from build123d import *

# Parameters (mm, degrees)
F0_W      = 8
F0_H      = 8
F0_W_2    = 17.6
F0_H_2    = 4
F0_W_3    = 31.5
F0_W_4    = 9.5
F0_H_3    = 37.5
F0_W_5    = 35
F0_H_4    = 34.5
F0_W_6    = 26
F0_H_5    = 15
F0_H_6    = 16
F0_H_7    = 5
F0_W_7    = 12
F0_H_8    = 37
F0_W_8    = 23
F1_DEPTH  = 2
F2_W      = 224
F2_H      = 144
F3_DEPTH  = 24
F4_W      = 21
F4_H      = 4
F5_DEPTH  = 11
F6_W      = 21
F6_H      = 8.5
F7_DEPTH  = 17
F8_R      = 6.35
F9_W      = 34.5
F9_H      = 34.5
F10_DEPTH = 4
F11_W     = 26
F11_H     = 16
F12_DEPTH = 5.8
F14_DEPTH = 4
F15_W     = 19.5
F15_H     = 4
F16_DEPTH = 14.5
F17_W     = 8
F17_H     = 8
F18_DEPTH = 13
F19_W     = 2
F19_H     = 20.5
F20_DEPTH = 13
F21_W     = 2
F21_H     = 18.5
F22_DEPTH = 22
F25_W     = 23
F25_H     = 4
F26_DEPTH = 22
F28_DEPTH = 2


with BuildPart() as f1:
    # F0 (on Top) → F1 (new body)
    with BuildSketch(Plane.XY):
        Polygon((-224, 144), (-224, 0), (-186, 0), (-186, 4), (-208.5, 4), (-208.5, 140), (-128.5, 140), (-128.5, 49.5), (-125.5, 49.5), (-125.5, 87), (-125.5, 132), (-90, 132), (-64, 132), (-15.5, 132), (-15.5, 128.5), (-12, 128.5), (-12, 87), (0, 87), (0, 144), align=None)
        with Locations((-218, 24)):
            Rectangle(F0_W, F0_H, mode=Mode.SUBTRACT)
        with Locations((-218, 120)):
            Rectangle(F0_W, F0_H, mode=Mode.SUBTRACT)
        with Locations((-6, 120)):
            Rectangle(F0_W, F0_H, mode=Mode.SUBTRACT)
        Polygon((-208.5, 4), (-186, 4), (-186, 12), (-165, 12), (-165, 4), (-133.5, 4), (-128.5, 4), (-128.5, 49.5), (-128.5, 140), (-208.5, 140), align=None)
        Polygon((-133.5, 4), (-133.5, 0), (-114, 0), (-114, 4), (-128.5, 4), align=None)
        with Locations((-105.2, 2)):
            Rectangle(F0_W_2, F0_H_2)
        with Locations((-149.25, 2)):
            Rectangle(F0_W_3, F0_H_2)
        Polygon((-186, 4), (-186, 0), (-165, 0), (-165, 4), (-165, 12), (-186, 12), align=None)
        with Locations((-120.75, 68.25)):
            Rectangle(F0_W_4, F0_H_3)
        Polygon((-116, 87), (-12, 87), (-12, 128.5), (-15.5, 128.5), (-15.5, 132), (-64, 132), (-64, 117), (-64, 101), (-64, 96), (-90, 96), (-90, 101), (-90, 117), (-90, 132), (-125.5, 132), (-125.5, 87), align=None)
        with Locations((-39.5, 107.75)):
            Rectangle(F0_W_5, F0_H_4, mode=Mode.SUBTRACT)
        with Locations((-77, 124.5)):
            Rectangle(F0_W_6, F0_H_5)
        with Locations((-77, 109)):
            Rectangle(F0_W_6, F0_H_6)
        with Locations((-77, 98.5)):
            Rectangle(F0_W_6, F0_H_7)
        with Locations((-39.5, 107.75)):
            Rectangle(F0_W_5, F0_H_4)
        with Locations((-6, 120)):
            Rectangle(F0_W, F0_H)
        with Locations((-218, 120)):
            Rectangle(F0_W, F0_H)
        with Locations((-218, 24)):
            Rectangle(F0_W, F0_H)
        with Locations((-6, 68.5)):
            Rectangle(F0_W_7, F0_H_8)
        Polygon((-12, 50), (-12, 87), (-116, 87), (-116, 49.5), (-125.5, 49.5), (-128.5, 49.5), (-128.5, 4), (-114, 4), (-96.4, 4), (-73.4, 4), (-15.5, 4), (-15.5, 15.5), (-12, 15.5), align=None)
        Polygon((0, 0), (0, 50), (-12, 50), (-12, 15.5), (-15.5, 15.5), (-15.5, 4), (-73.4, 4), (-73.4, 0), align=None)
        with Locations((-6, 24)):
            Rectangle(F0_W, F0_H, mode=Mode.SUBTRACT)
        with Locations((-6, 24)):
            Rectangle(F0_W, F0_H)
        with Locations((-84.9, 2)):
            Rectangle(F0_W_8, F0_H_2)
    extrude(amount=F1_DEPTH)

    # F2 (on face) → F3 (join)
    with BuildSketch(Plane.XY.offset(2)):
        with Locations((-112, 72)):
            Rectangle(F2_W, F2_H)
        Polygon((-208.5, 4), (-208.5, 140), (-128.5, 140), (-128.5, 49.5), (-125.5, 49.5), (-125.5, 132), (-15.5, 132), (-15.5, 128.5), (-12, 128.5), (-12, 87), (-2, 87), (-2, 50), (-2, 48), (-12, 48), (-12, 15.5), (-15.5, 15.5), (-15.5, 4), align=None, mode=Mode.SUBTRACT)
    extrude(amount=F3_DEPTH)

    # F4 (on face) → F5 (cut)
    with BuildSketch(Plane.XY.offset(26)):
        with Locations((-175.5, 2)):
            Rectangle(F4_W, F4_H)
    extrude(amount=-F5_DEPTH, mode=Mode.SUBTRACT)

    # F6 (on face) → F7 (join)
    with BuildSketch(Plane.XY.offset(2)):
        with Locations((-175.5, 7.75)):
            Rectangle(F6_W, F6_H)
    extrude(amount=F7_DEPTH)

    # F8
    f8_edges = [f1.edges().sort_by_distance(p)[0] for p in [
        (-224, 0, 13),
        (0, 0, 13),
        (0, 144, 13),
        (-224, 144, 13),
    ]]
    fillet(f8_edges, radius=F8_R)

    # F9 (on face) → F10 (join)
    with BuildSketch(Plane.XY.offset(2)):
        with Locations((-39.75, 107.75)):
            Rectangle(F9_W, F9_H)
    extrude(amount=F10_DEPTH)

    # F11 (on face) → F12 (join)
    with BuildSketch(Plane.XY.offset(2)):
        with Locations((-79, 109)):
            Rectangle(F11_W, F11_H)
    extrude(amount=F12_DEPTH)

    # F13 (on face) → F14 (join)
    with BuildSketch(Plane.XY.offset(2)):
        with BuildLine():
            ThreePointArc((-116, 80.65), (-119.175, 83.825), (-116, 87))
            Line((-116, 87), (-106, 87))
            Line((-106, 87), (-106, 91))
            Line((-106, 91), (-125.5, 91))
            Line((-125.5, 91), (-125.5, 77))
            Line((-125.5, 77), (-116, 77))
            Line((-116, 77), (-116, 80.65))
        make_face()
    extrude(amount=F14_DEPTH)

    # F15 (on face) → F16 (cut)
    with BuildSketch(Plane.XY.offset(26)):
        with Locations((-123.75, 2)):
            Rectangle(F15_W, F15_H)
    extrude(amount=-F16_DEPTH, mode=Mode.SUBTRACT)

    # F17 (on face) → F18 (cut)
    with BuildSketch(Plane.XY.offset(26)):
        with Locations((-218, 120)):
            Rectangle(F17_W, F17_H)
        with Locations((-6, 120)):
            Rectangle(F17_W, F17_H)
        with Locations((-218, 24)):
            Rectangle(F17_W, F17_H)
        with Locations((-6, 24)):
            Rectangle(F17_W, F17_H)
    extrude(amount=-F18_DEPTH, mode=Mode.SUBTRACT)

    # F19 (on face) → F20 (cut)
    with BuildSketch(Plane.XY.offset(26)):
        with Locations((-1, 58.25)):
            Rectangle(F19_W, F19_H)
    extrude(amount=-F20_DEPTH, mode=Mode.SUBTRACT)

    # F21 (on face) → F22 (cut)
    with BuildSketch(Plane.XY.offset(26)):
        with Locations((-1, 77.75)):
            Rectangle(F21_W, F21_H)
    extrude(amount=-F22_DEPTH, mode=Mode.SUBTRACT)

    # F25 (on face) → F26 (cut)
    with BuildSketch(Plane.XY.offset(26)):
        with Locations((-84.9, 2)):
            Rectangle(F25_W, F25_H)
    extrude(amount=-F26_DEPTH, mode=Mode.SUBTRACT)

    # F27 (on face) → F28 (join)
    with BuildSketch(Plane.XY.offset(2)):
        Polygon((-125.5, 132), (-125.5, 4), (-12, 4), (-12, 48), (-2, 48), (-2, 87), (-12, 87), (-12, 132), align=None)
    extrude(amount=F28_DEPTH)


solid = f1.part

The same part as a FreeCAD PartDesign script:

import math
import FreeCAD as App
import Part
import Sketcher


def edges_at(feature, points):
    """Names of the edges that pass closest to the given points."""
    edges = feature.Shape.Edges
    near = lambda p: min(range(len(edges)), key=lambda i: edges[i].distToShape(Part.Vertex(*p))[0])
    return sorted({f"Edge{near(p) + 1}" for p in points})

doc = App.newDocument("Part")
params = doc.addObject("Spreadsheet::Sheet", "Params")
for row, (alias, value) in enumerate([
    ("sketch1_width", "224 mm"),
    ("sketch1_height", "144 mm"),
    ("pad1_length", "2 mm"),
    ("sketch2_width", "224 mm"),
    ("sketch2_width2", "193 mm"),
    ("sketch2_width3", "80 mm"),
    ("sketch2_width4", "3 mm"),
    ("sketch2_width5", "10 mm"),
    ("pad2_length", "24 mm"),
    ("sketch3_width", "21 mm"),
    ("sketch3_height", "4 mm"),
    ("pocket1_length", "11 mm"),
    ("sketch4_width", "21 mm"),
    ("sketch4_height", "8.5 mm"),
    ("pad3_length", "17 mm"),
    ("fillet_radius", "6.35 mm"),
    ("sketch5_width", "34.5 mm"),
    ("pad4_length", "4 mm"),
    ("sketch6_width", "26 mm"),
    ("sketch6_height", "16 mm"),
    ("pad5_length", "5.8 mm"),
    ("sketch7_width", "10 mm"),
    ("sketch7_height", "4 mm"),
    ("sketch7_height2", "14 mm"),
    ("sketch7_width2", "19.5 mm"),
    ("pad6_length", "4 mm"),
    ("sketch8_height", "4 mm"),
    ("sketch8_width", "19.5 mm"),
    ("pocket2_length", "14.5 mm"),
    ("sketch9_width", "8 mm"),
    ("pocket3_length", "13 mm"),
    ("sketch10_width", "2 mm"),
    ("sketch10_height", "20.5 mm"),
    ("pocket4_length", "13 mm"),
    ("sketch11_width", "2 mm"),
    ("sketch11_height", "18.5 mm"),
    ("pocket5_length", "22 mm"),
    ("sketch12_width", "23 mm"),
    ("sketch12_height", "4 mm"),
    ("pocket6_length", "22 mm"),
    ("sketch13_width", "10 mm"),
    ("sketch13_height", "128 mm"),
    ("sketch13_height2", "44 mm"),
    ("sketch13_height3", "39 mm"),
    ("sketch13_width2", "113.5 mm"),
    ("pad7_length", "2 mm"),
], start=1):
    params.set(f"A{row}", alias)
    params.set(f"B{row}", "=" + value)
    params.setAlias(f"B{row}", alias)

body = doc.addObject("PartDesign::Body", "Body")

# Sketch on XY plane
sketch1 = body.newObject("Sketcher::SketchObject", "Sketch")
sketch1.AttachmentSupport = (doc.getObject("XY_Plane"), [""])
sketch1.MapMode = "FlatFace"
sketch1.addGeometry([
    Part.LineSegment(App.Vector(0, 144, 0), App.Vector(-224, 144, 0)),
    Part.LineSegment(App.Vector(-224, 144, 0), App.Vector(-224, 0, 0)),
    Part.LineSegment(App.Vector(-224, 0, 0), App.Vector(0, 0, 0)),
    Part.LineSegment(App.Vector(0, 0, 0), App.Vector(0, 144, 0)),
], False)
sketch1.addConstraint([
    Sketcher.Constraint("Coincident", 0, 2, 1, 1),
    Sketcher.Constraint("Coincident", 1, 2, 2, 1),
    Sketcher.Constraint("Coincident", 2, 2, 3, 1),
    Sketcher.Constraint("Coincident", 3, 2, 0, 1),
    Sketcher.Constraint("Horizontal", 0),
    Sketcher.Constraint("Vertical", 1),
    Sketcher.Constraint("Horizontal", 2),
    Sketcher.Constraint("Vertical", 3),
    Sketcher.Constraint("Coincident", 2, 2, -1, 1),
    Sketcher.Constraint("DistanceX", 0, 2, 0, 1, 224.0),
    Sketcher.Constraint("DistanceY", 1, 2, 1, 1, 144.0),
])
sketch1.setExpression("Constraints[9]", "Params.sketch1_width")
sketch1.setExpression("Constraints[10]", "Params.sketch1_height")
pad1 = body.newObject("PartDesign::Pad", "Pad")
pad1.Profile = sketch1
pad1.setExpression("Length", "Params.pad1_length")

# Sketch on XY plane
sketch2 = body.newObject("Sketcher::SketchObject", "Sketch001")
sketch2.AttachmentSupport = (doc.getObject("XY_Plane"), [""])
sketch2.MapMode = "FlatFace"
sketch2.AttachmentOffset = App.Placement(App.Vector(0, 0, 2), App.Rotation())
sketch2.addGeometry([
    Part.LineSegment(App.Vector(-224, 144, 0), App.Vector(-224, 0, 0)),  # 0
    Part.LineSegment(App.Vector(-224, 0, 0), App.Vector(0, 0, 0)),  # 1
    Part.LineSegment(App.Vector(0, 0, 0), App.Vector(0, 144, 0)),  # 2
    Part.LineSegment(App.Vector(0, 144, 0), App.Vector(-224, 144, 0)),  # 3
    Part.LineSegment(App.Vector(-15.5, 4, 0), App.Vector(-208.5, 4, 0)),  # 4
    Part.LineSegment(App.Vector(-208.5, 4, 0), App.Vector(-208.5, 140, 0)),  # 5
    Part.LineSegment(App.Vector(-208.5, 140, 0), App.Vector(-128.5, 140, 0)),  # 6
    Part.LineSegment(App.Vector(-128.5, 140, 0), App.Vector(-128.5, 49.5, 0)),  # 7
    Part.LineSegment(App.Vector(-128.5, 49.5, 0), App.Vector(-125.5, 49.5, 0)),  # 8
    Part.LineSegment(App.Vector(-125.5, 49.5, 0), App.Vector(-125.5, 132, 0)),  # 9
    Part.LineSegment(App.Vector(-125.5, 132, 0), App.Vector(-15.5, 132, 0)),  # 10
    Part.LineSegment(App.Vector(-15.5, 132, 0), App.Vector(-15.5, 128.5, 0)),  # 11
    Part.LineSegment(App.Vector(-15.5, 128.5, 0), App.Vector(-12, 128.5, 0)),  # 12
    Part.LineSegment(App.Vector(-12, 128.5, 0), App.Vector(-12, 87, 0)),  # 13
    Part.LineSegment(App.Vector(-12, 87, 0), App.Vector(-2, 87, 0)),  # 14
    Part.LineSegment(App.Vector(-2, 87, 0), App.Vector(-2, 48, 0)),  # 15
    Part.LineSegment(App.Vector(-2, 48, 0), App.Vector(-12, 48, 0)),  # 16
    Part.LineSegment(App.Vector(-12, 48, 0), App.Vector(-12, 15.5, 0)),  # 17
    Part.LineSegment(App.Vector(-12, 15.5, 0), App.Vector(-15.5, 15.5, 0)),  # 18
    Part.LineSegment(App.Vector(-15.5, 15.5, 0), App.Vector(-15.5, 4, 0)),  # 19
], False)
sketch2.addConstraint([
    Sketcher.Constraint("Coincident", 0, 2, 1, 1),
    Sketcher.Constraint("Coincident", 1, 2, 2, 1),
    Sketcher.Constraint("Coincident", 2, 2, 3, 1),
    Sketcher.Constraint("Coincident", 3, 2, 0, 1),
    Sketcher.Constraint("Coincident", 4, 2, 5, 1),
    Sketcher.Constraint("Coincident", 5, 2, 6, 1),
    Sketcher.Constraint("Coincident", 6, 2, 7, 1),
    Sketcher.Constraint("Coincident", 7, 2, 8, 1),
    Sketcher.Constraint("Coincident", 8, 2, 9, 1),
    Sketcher.Constraint("Coincident", 9, 2, 10, 1),
    Sketcher.Constraint("Coincident", 10, 2, 11, 1),
    Sketcher.Constraint("Coincident", 11, 2, 12, 1),
    Sketcher.Constraint("Coincident", 12, 2, 13, 1),
    Sketcher.Constraint("Coincident", 13, 2, 14, 1),
    Sketcher.Constraint("Coincident", 14, 2, 15, 1),
    Sketcher.Constraint("Coincident", 15, 2, 16, 1),
    Sketcher.Constraint("Coincident", 16, 2, 17, 1),
    Sketcher.Constraint("Coincident", 17, 2, 18, 1),
    Sketcher.Constraint("Coincident", 18, 2, 19, 1),
    Sketcher.Constraint("Coincident", 19, 2, 4, 1),
    Sketcher.Constraint("Vertical", 0),
    Sketcher.Constraint("Horizontal", 1),
    Sketcher.Constraint("Vertical", 2),
    Sketcher.Constraint("Horizontal", 3),
    Sketcher.Constraint("Horizontal", 4),
    Sketcher.Constraint("Vertical", 5),
    Sketcher.Constraint("Horizontal", 6),
    Sketcher.Constraint("Vertical", 7),
    Sketcher.Constraint("Horizontal", 8),
    Sketcher.Constraint("Vertical", 9),
    Sketcher.Constraint("Horizontal", 10),
    Sketcher.Constraint("Vertical", 11),
    Sketcher.Constraint("Horizontal", 12),
    Sketcher.Constraint("Vertical", 13),
    Sketcher.Constraint("Horizontal", 14),
    Sketcher.Constraint("Vertical", 15),
    Sketcher.Constraint("Horizontal", 16),
    Sketcher.Constraint("Vertical", 17),
    Sketcher.Constraint("Horizontal", 18),
    Sketcher.Constraint("Vertical", 19),
    Sketcher.Constraint("Coincident", 1, 2, -1, 1),
    Sketcher.Constraint("Vertical", 13, 2, 16, 2),
    Sketcher.Constraint("Vertical", 11, 2, 18, 2),
    Sketcher.Constraint("Equal", 18, 11),
    Sketcher.Constraint("DistanceX", 1, 1, 1, 2, 224.0),
    Sketcher.Constraint("DistanceX", 4, 2, 4, 1, 193.0),
    Sketcher.Constraint("DistanceX", 6, 1, 6, 2, 80.0),
    Sketcher.Constraint("DistanceX", 8, 1, 8, 2, 3.0),
    Sketcher.Constraint("DistanceX", 14, 1, 14, 2, 10.0),
    Sketcher.Constraint("DistanceY", 0, 2, 0, 1, 144.0),
    Sketcher.Constraint("DistanceY", 5, 1, 5, 2, 136.0),
    Sketcher.Constraint("DistanceY", 15, 2, 15, 1, 39.0),
    Sketcher.Constraint("DistanceX", 12, 1, 12, 2, 3.5),
    Sketcher.Constraint("DistanceY", 7, 2, 7, 1, 90.5),
    Sketcher.Constraint("DistanceY", 9, 1, 9, 2, 82.5),
    Sketcher.Constraint("DistanceY", 13, 2, 13, 1, 41.5),
    Sketcher.Constraint("DistanceY", 17, 2, 17, 1, 32.5),
    Sketcher.Constraint("DistanceY", -1, 1, 4, 2, 4.0),
    Sketcher.Constraint("DistanceX", 12, 2, -1, 1, 12.0),
])
sketch2.setExpression("Constraints[44]", "Params.sketch2_width")
sketch2.setExpression("Constraints[45]", "Params.sketch2_width2")
sketch2.setExpression("Constraints[46]", "Params.sketch2_width3")
sketch2.setExpression("Constraints[47]", "Params.sketch2_width4")
sketch2.setExpression("Constraints[48]", "Params.sketch2_width5")
pad2 = body.newObject("PartDesign::Pad", "Pad001")
pad2.Profile = sketch2
pad2.setExpression("Length", "Params.pad2_length")

# Sketch on XY plane
sketch3 = body.newObject("Sketcher::SketchObject", "Sketch002")
sketch3.AttachmentSupport = (doc.getObject("XY_Plane"), [""])
sketch3.MapMode = "FlatFace"
sketch3.AttachmentOffset = App.Placement(App.Vector(0, 0, 26), App.Rotation())
sketch3.addGeometry([
    Part.LineSegment(App.Vector(-186, 4, 0), App.Vector(-186, 0, 0)),
    Part.LineSegment(App.Vector(-186, 0, 0), App.Vector(-165, 0, 0)),
    Part.LineSegment(App.Vector(-165, 0, 0), App.Vector(-165, 4, 0)),
    Part.LineSegment(App.Vector(-165, 4, 0), App.Vector(-186, 4, 0)),
], False)
sketch3.addConstraint([
    Sketcher.Constraint("Coincident", 0, 2, 1, 1),
    Sketcher.Constraint("Coincident", 1, 2, 2, 1),
    Sketcher.Constraint("Coincident", 2, 2, 3, 1),
    Sketcher.Constraint("Coincident", 3, 2, 0, 1),
    Sketcher.Constraint("Vertical", 0),
    Sketcher.Constraint("Horizontal", 1),
    Sketcher.Constraint("Vertical", 2),
    Sketcher.Constraint("Horizontal", 3),
    Sketcher.Constraint("PointOnObject", 0, 2, -1),
    Sketcher.Constraint("DistanceX", 1, 1, 1, 2, 21.0),
    Sketcher.Constraint("DistanceY", 0, 2, 0, 1, 4.0),
    Sketcher.Constraint("DistanceX", 0, 2, -1, 1, 186.0),
])
sketch3.setExpression("Constraints[9]", "Params.sketch3_width")
sketch3.setExpression("Constraints[10]", "Params.sketch3_height")
pocket1 = body.newObject("PartDesign::Pocket", "Pocket")
pocket1.Profile = sketch3
pocket1.setExpression("Length", "Params.pocket1_length")

# Sketch on XY plane
sketch4 = body.newObject("Sketcher::SketchObject", "Sketch003")
sketch4.AttachmentSupport = (doc.getObject("XY_Plane"), [""])
sketch4.MapMode = "FlatFace"
sketch4.AttachmentOffset = App.Placement(App.Vector(0, 0, 2), App.Rotation())
sketch4.addGeometry([
    Part.LineSegment(App.Vector(-186, 12, 0), App.Vector(-186, 3.5, 0)),
    Part.LineSegment(App.Vector(-186, 3.5, 0), App.Vector(-165, 3.5, 0)),
    Part.LineSegment(App.Vector(-165, 3.5, 0), App.Vector(-165, 12, 0)),
    Part.LineSegment(App.Vector(-165, 12, 0), App.Vector(-186, 12, 0)),
], False)
sketch4.addConstraint([
    Sketcher.Constraint("Coincident", 0, 2, 1, 1),
    Sketcher.Constraint("Coincident", 1, 2, 2, 1),
    Sketcher.Constraint("Coincident", 2, 2, 3, 1),
    Sketcher.Constraint("Coincident", 3, 2, 0, 1),
    Sketcher.Constraint("Vertical", 0),
    Sketcher.Constraint("Horizontal", 1),
    Sketcher.Constraint("Vertical", 2),
    Sketcher.Constraint("Horizontal", 3),
    Sketcher.Constraint("DistanceX", 1, 1, 1, 2, 21.0),
    Sketcher.Constraint("DistanceY", 0, 2, 0, 1, 8.5),
    Sketcher.Constraint("DistanceX", 0, 2, -1, 1, 186.0),
    Sketcher.Constraint("DistanceY", -1, 1, 2, 2, 12.0),
])
sketch4.setExpression("Constraints[8]", "Params.sketch4_width")
sketch4.setExpression("Constraints[9]", "Params.sketch4_height")
pad3 = body.newObject("PartDesign::Pad", "Pad002")
pad3.Profile = sketch4
pad3.setExpression("Length", "Params.pad3_length")
doc.recompute()

fillet = body.newObject("PartDesign::Fillet", "Fillet")
fillet.Base = (pad3, edges_at(pad3, [
    (-224, 0, 13),
    (0, 0, 13),
    (0, 144, 13),
    (-224, 144, 13),
]))
fillet.setExpression("Radius", "Params.fillet_radius")

# Sketch on XY plane
sketch5 = body.newObject("Sketcher::SketchObject", "Sketch004")
sketch5.AttachmentSupport = (doc.getObject("XY_Plane"), [""])
sketch5.MapMode = "FlatFace"
sketch5.AttachmentOffset = App.Placement(App.Vector(0, 0, 2), App.Rotation())
sketch5.addGeometry([
    Part.LineSegment(App.Vector(-57, 125, 0), App.Vector(-57, 90.5, 0)),
    Part.LineSegment(App.Vector(-57, 90.5, 0), App.Vector(-22.5, 90.5, 0)),
    Part.LineSegment(App.Vector(-22.5, 90.5, 0), App.Vector(-22.5, 125, 0)),
    Part.LineSegment(App.Vector(-22.5, 125, 0), App.Vector(-57, 125, 0)),
], False)
sketch5.addConstraint([
    Sketcher.Constraint("Coincident", 0, 2, 1, 1),
    Sketcher.Constraint("Coincident", 1, 2, 2, 1),
    Sketcher.Constraint("Coincident", 2, 2, 3, 1),
    Sketcher.Constraint("Coincident", 3, 2, 0, 1),
    Sketcher.Constraint("Vertical", 0),
    Sketcher.Constraint("Horizontal", 1),
    Sketcher.Constraint("Vertical", 2),
    Sketcher.Constraint("Horizontal", 3),
    Sketcher.Constraint("Equal", 3, 0),
    Sketcher.Constraint("DistanceX", 1, 1, 1, 2, 34.5),
    Sketcher.Constraint("DistanceX", 0, 2, -1, 1, 57.0),
    Sketcher.Constraint("DistanceY", -1, 1, 2, 2, 125.0),
])
sketch5.setExpression("Constraints[9]", "Params.sketch5_width")
pad4 = body.newObject("PartDesign::Pad", "Pad003")
pad4.Profile = sketch5
pad4.setExpression("Length", "Params.pad4_length")

# Sketch on XY plane
sketch6 = body.newObject("Sketcher::SketchObject", "Sketch005")
sketch6.AttachmentSupport = (doc.getObject("XY_Plane"), [""])
sketch6.MapMode = "FlatFace"
sketch6.AttachmentOffset = App.Placement(App.Vector(0, 0, 2), App.Rotation())
sketch6.addGeometry([
    Part.LineSegment(App.Vector(-92, 117, 0), App.Vector(-92, 101, 0)),
    Part.LineSegment(App.Vector(-92, 101, 0), App.Vector(-66, 101, 0)),
    Part.LineSegment(App.Vector(-66, 101, 0), App.Vector(-66, 117, 0)),
    Part.LineSegment(App.Vector(-66, 117, 0), App.Vector(-92, 117, 0)),
], False)
sketch6.addConstraint([
    Sketcher.Constraint("Coincident", 0, 2, 1, 1),
    Sketcher.Constraint("Coincident", 1, 2, 2, 1),
    Sketcher.Constraint("Coincident", 2, 2, 3, 1),
    Sketcher.Constraint("Coincident", 3, 2, 0, 1),
    Sketcher.Constraint("Vertical", 0),
    Sketcher.Constraint("Horizontal", 1),
    Sketcher.Constraint("Vertical", 2),
    Sketcher.Constraint("Horizontal", 3),
    Sketcher.Constraint("DistanceX", 1, 1, 1, 2, 26.0),
    Sketcher.Constraint("DistanceY", 0, 2, 0, 1, 16.0),
    Sketcher.Constraint("DistanceX", 0, 2, -1, 1, 92.0),
    Sketcher.Constraint("DistanceY", -1, 1, 0, 2, 101.0),
])
sketch6.setExpression("Constraints[8]", "Params.sketch6_width")
sketch6.setExpression("Constraints[9]", "Params.sketch6_height")
pad5 = body.newObject("PartDesign::Pad", "Pad004")
pad5.Profile = sketch6
pad5.setExpression("Length", "Params.pad5_length")

# Sketch on XY plane
sketch7 = body.newObject("Sketcher::SketchObject", "Sketch006")
sketch7.AttachmentSupport = (doc.getObject("XY_Plane"), [""])
sketch7.MapMode = "FlatFace"
sketch7.AttachmentOffset = App.Placement(App.Vector(0, 0, 2), App.Rotation())
sketch7.addGeometry([
    Part.ArcOfCircle(Part.Circle(App.Vector(-116, 83.825, 0), App.Vector(0, 0, 1), 3.175), math.radians(90), math.radians(270)),  # 0
    Part.LineSegment(App.Vector(-116, 87, 0), App.Vector(-106, 87, 0)),  # 1
    Part.LineSegment(App.Vector(-106, 87, 0), App.Vector(-106, 91, 0)),  # 2
    Part.LineSegment(App.Vector(-106, 91, 0), App.Vector(-125.5, 91, 0)),  # 3
    Part.LineSegment(App.Vector(-125.5, 91, 0), App.Vector(-125.5, 77, 0)),  # 4
    Part.LineSegment(App.Vector(-125.5, 77, 0), App.Vector(-116, 77, 0)),  # 5
    Part.LineSegment(App.Vector(-116, 77, 0), App.Vector(-116, 80.65, 0)),  # 6
], False)
sketch7.addConstraint([
    Sketcher.Constraint("Tangent", 0, 1, 1, 1),
    Sketcher.Constraint("Coincident", 1, 2, 2, 1),
    Sketcher.Constraint("Coincident", 2, 2, 3, 1),
    Sketcher.Constraint("Coincident", 3, 2, 4, 1),
    Sketcher.Constraint("Coincident", 4, 2, 5, 1),
    Sketcher.Constraint("Coincident", 5, 2, 6, 1),
    Sketcher.Constraint("Coincident", 6, 2, 0, 2),
    Sketcher.Constraint("Horizontal", 1),
    Sketcher.Constraint("Vertical", 2),
    Sketcher.Constraint("Horizontal", 3),
    Sketcher.Constraint("Vertical", 4),
    Sketcher.Constraint("Horizontal", 5),
    Sketcher.Constraint("Vertical", 6),
    Sketcher.Constraint("Vertical", 0, 1, 5, 2),
    Sketcher.Constraint("DistanceX", 1, 1, 1, 2, 10.0),
    Sketcher.Constraint("DistanceY", 2, 1, 2, 2, 4.0),
    Sketcher.Constraint("DistanceY", 4, 2, 4, 1, 14.0),
    Sketcher.Constraint("DistanceX", 3, 2, 3, 1, 19.5),
    Sketcher.Constraint("DistanceX", 0, 3, -1, 1, 116.0),
    Sketcher.Constraint("DistanceY", -1, 1, 0, 1, 87.0),
    Sketcher.Constraint("Radius", 0, 3.175),
])
sketch7.setExpression("Constraints[14]", "Params.sketch7_width")
sketch7.setExpression("Constraints[15]", "Params.sketch7_height")
sketch7.setExpression("Constraints[16]", "Params.sketch7_height2")
sketch7.setExpression("Constraints[17]", "Params.sketch7_width2")
pad6 = body.newObject("PartDesign::Pad", "Pad005")
pad6.Profile = sketch7
pad6.setExpression("Length", "Params.pad6_length")

# Sketch on XY plane
sketch8 = body.newObject("Sketcher::SketchObject", "Sketch007")
sketch8.AttachmentSupport = (doc.getObject("XY_Plane"), [""])
sketch8.MapMode = "FlatFace"
sketch8.AttachmentOffset = App.Placement(App.Vector(0, 0, 26), App.Rotation())
sketch8.addGeometry([
    Part.LineSegment(App.Vector(-133.5, 4, 0), App.Vector(-133.5, 0, 0)),
    Part.LineSegment(App.Vector(-133.5, 0, 0), App.Vector(-114, 0, 0)),
    Part.LineSegment(App.Vector(-114, 0, 0), App.Vector(-114, 4, 0)),
    Part.LineSegment(App.Vector(-114, 4, 0), App.Vector(-133.5, 4, 0)),
], False)
sketch8.addConstraint([
    Sketcher.Constraint("Coincident", 0, 2, 1, 1),
    Sketcher.Constraint("Coincident", 1, 2, 2, 1),
    Sketcher.Constraint("Coincident", 2, 2, 3, 1),
    Sketcher.Constraint("Coincident", 3, 2, 0, 1),
    Sketcher.Constraint("Vertical", 0),
    Sketcher.Constraint("Horizontal", 1),
    Sketcher.Constraint("Vertical", 2),
    Sketcher.Constraint("Horizontal", 3),
    Sketcher.Constraint("PointOnObject", 0, 2, -1),
    Sketcher.Constraint("DistanceY", 0, 2, 0, 1, 4.0),
    Sketcher.Constraint("DistanceX", 1, 1, 1, 2, 19.5),
    Sketcher.Constraint("DistanceX", 1, 2, -1, 1, 114.0),
])
sketch8.setExpression("Constraints[9]", "Params.sketch8_height")
sketch8.setExpression("Constraints[10]", "Params.sketch8_width")
pocket2 = body.newObject("PartDesign::Pocket", "Pocket001")
pocket2.Profile = sketch8
pocket2.setExpression("Length", "Params.pocket2_length")

# Sketch on XY plane
sketch9 = body.newObject("Sketcher::SketchObject", "Sketch008")
sketch9.AttachmentSupport = (doc.getObject("XY_Plane"), [""])
sketch9.MapMode = "FlatFace"
sketch9.AttachmentOffset = App.Placement(App.Vector(0, 0, 26), App.Rotation())
sketch9.addGeometry([
    Part.LineSegment(App.Vector(-222, 124, 0), App.Vector(-222, 116, 0)),  # 0
    Part.LineSegment(App.Vector(-222, 116, 0), App.Vector(-214, 116, 0)),  # 1
    Part.LineSegment(App.Vector(-214, 116, 0), App.Vector(-214, 124, 0)),  # 2
    Part.LineSegment(App.Vector(-214, 124, 0), App.Vector(-222, 124, 0)),  # 3
    Part.LineSegment(App.Vector(-10, 124, 0), App.Vector(-10, 116, 0)),  # 4
    Part.LineSegment(App.Vector(-10, 116, 0), App.Vector(-2, 116, 0)),  # 5
    Part.LineSegment(App.Vector(-2, 116, 0), App.Vector(-2, 124, 0)),  # 6
    Part.LineSegment(App.Vector(-2, 124, 0), App.Vector(-10, 124, 0)),  # 7
    Part.LineSegment(App.Vector(-222, 28, 0), App.Vector(-222, 20, 0)),  # 8
    Part.LineSegment(App.Vector(-222, 20, 0), App.Vector(-214, 20, 0)),  # 9
    Part.LineSegment(App.Vector(-214, 20, 0), App.Vector(-214, 28, 0)),  # 10
    Part.LineSegment(App.Vector(-214, 28, 0), App.Vector(-222, 28, 0)),  # 11
    Part.LineSegment(App.Vector(-10, 28, 0), App.Vector(-10, 20, 0)),  # 12
    Part.LineSegment(App.Vector(-10, 20, 0), App.Vector(-2, 20, 0)),  # 13
    Part.LineSegment(App.Vector(-2, 20, 0), App.Vector(-2, 28, 0)),  # 14
    Part.LineSegment(App.Vector(-2, 28, 0), App.Vector(-10, 28, 0)),  # 15
], False)
sketch9.addConstraint([
    Sketcher.Constraint("Coincident", 0, 2, 1, 1),
    Sketcher.Constraint("Coincident", 1, 2, 2, 1),
    Sketcher.Constraint("Coincident", 2, 2, 3, 1),
    Sketcher.Constraint("Coincident", 3, 2, 0, 1),
    Sketcher.Constraint("Coincident", 4, 2, 5, 1),
    Sketcher.Constraint("Coincident", 5, 2, 6, 1),
    Sketcher.Constraint("Coincident", 6, 2, 7, 1),
    Sketcher.Constraint("Coincident", 7, 2, 4, 1),
    Sketcher.Constraint("Coincident", 8, 2, 9, 1),
    Sketcher.Constraint("Coincident", 9, 2, 10, 1),
    Sketcher.Constraint("Coincident", 10, 2, 11, 1),
    Sketcher.Constraint("Coincident", 11, 2, 8, 1),
    Sketcher.Constraint("Coincident", 12, 2, 13, 1),
    Sketcher.Constraint("Coincident", 13, 2, 14, 1),
    Sketcher.Constraint("Coincident", 14, 2, 15, 1),
    Sketcher.Constraint("Coincident", 15, 2, 12, 1),
    Sketcher.Constraint("Vertical", 0),
    Sketcher.Constraint("Horizontal", 1),
    Sketcher.Constraint("Vertical", 2),
    Sketcher.Constraint("Horizontal", 3),
    Sketcher.Constraint("Vertical", 4),
    Sketcher.Constraint("Horizontal", 5),
    Sketcher.Constraint("Vertical", 6),
    Sketcher.Constraint("Horizontal", 7),
    Sketcher.Constraint("Vertical", 8),
    Sketcher.Constraint("Horizontal", 9),
    Sketcher.Constraint("Vertical", 10),
    Sketcher.Constraint("Horizontal", 11),
    Sketcher.Constraint("Vertical", 12),
    Sketcher.Constraint("Horizontal", 13),
    Sketcher.Constraint("Vertical", 14),
    Sketcher.Constraint("Horizontal", 15),
    Sketcher.Constraint("Horizontal", 1, 2, 4, 2),
    Sketcher.Constraint("Horizontal", 3, 2, 6, 2),
    Sketcher.Constraint("Horizontal", 9, 2, 12, 2),
    Sketcher.Constraint("Horizontal", 11, 2, 14, 2),
    Sketcher.Constraint("Vertical", 3, 2, 8, 2),
    Sketcher.Constraint("Vertical", 2, 2, 9, 2),
    Sketcher.Constraint("Vertical", 7, 2, 12, 2),
    Sketcher.Constraint("Vertical", 6, 2, 13, 2),
    Sketcher.Constraint("Equal", 3, 5),
    Sketcher.Constraint("Equal", 15, 0),
    Sketcher.Constraint("Equal", 6, 8),
    Sketcher.Constraint("DistanceX", 1, 1, 1, 2, 8.0),
    Sketcher.Constraint("DistanceX", 0, 2, -1, 1, 222.0),
    Sketcher.Constraint("DistanceY", -1, 1, 0, 2, 116.0),
    Sketcher.Constraint("DistanceX", 4, 2, -1, 1, 10.0),
    Sketcher.Constraint("DistanceY", -1, 1, 8, 2, 20.0),
])
sketch9.setExpression("Constraints[43]", "Params.sketch9_width")
pocket3 = body.newObject("PartDesign::Pocket", "Pocket002")
pocket3.Profile = sketch9
pocket3.setExpression("Length", "Params.pocket3_length")

# Sketch on XY plane
sketch10 = body.newObject("Sketcher::SketchObject", "Sketch009")
sketch10.AttachmentSupport = (doc.getObject("XY_Plane"), [""])
sketch10.MapMode = "FlatFace"
sketch10.AttachmentOffset = App.Placement(App.Vector(0, 0, 26), App.Rotation())
sketch10.addGeometry([
    Part.LineSegment(App.Vector(-2, 68.5, 0), App.Vector(-2, 48, 0)),
    Part.LineSegment(App.Vector(-2, 48, 0), App.Vector(0, 48, 0)),
    Part.LineSegment(App.Vector(0, 48, 0), App.Vector(0, 68.5, 0)),
    Part.LineSegment(App.Vector(0, 68.5, 0), App.Vector(-2, 68.5, 0)),
], False)
sketch10.addConstraint([
    Sketcher.Constraint("Coincident", 0, 2, 1, 1),
    Sketcher.Constraint("Coincident", 1, 2, 2, 1),
    Sketcher.Constraint("Coincident", 2, 2, 3, 1),
    Sketcher.Constraint("Coincident", 3, 2, 0, 1),
    Sketcher.Constraint("Vertical", 0),
    Sketcher.Constraint("Horizontal", 1),
    Sketcher.Constraint("Vertical", 2),
    Sketcher.Constraint("Horizontal", 3),
    Sketcher.Constraint("PointOnObject", 1, 2, -2),
    Sketcher.Constraint("DistanceX", 1, 1, 1, 2, 2.0),
    Sketcher.Constraint("DistanceY", 0, 2, 0, 1, 20.5),
    Sketcher.Constraint("DistanceY", -1, 1, 0, 2, 48.0),
])
sketch10.setExpression("Constraints[9]", "Params.sketch10_width")
sketch10.setExpression("Constraints[10]", "Params.sketch10_height")
pocket4 = body.newObject("PartDesign::Pocket", "Pocket003")
pocket4.Profile = sketch10
pocket4.setExpression("Length", "Params.pocket4_length")

# Sketch on XY plane
sketch11 = body.newObject("Sketcher::SketchObject", "Sketch010")
sketch11.AttachmentSupport = (doc.getObject("XY_Plane"), [""])
sketch11.MapMode = "FlatFace"
sketch11.AttachmentOffset = App.Placement(App.Vector(0, 0, 26), App.Rotation())
sketch11.addGeometry([
    Part.LineSegment(App.Vector(-2, 87, 0), App.Vector(-2, 68.5, 0)),
    Part.LineSegment(App.Vector(-2, 68.5, 0), App.Vector(0, 68.5, 0)),
    Part.LineSegment(App.Vector(0, 68.5, 0), App.Vector(0, 87, 0)),
    Part.LineSegment(App.Vector(0, 87, 0), App.Vector(-2, 87, 0)),
], False)
sketch11.addConstraint([
    Sketcher.Constraint("Coincident", 0, 2, 1, 1),
    Sketcher.Constraint("Coincident", 1, 2, 2, 1),
    Sketcher.Constraint("Coincident", 2, 2, 3, 1),
    Sketcher.Constraint("Coincident", 3, 2, 0, 1),
    Sketcher.Constraint("Vertical", 0),
    Sketcher.Constraint("Horizontal", 1),
    Sketcher.Constraint("Vertical", 2),
    Sketcher.Constraint("Horizontal", 3),
    Sketcher.Constraint("PointOnObject", 1, 2, -2),
    Sketcher.Constraint("DistanceX", 1, 1, 1, 2, 2.0),
    Sketcher.Constraint("DistanceY", 0, 2, 0, 1, 18.5),
    Sketcher.Constraint("DistanceY", -1, 1, 2, 2, 87.0),
])
sketch11.setExpression("Constraints[9]", "Params.sketch11_width")
sketch11.setExpression("Constraints[10]", "Params.sketch11_height")
pocket5 = body.newObject("PartDesign::Pocket", "Pocket004")
pocket5.Profile = sketch11
pocket5.setExpression("Length", "Params.pocket5_length")

# Sketch on XY plane
sketch12 = body.newObject("Sketcher::SketchObject", "Sketch011")
sketch12.AttachmentSupport = (doc.getObject("XY_Plane"), [""])
sketch12.MapMode = "FlatFace"
sketch12.AttachmentOffset = App.Placement(App.Vector(0, 0, 26), App.Rotation())
sketch12.addGeometry([
    Part.LineSegment(App.Vector(-96.4, 4, 0), App.Vector(-96.4, 0, 0)),
    Part.LineSegment(App.Vector(-96.4, 0, 0), App.Vector(-73.4, 0, 0)),
    Part.LineSegment(App.Vector(-73.4, 0, 0), App.Vector(-73.4, 4, 0)),
    Part.LineSegment(App.Vector(-73.4, 4, 0), App.Vector(-96.4, 4, 0)),
], False)
sketch12.addConstraint([
    Sketcher.Constraint("Coincident", 0, 2, 1, 1),
    Sketcher.Constraint("Coincident", 1, 2, 2, 1),
    Sketcher.Constraint("Coincident", 2, 2, 3, 1),
    Sketcher.Constraint("Coincident", 3, 2, 0, 1),
    Sketcher.Constraint("Vertical", 0),
    Sketcher.Constraint("Horizontal", 1),
    Sketcher.Constraint("Vertical", 2),
    Sketcher.Constraint("Horizontal", 3),
    Sketcher.Constraint("PointOnObject", 0, 2, -1),
    Sketcher.Constraint("DistanceX", 1, 1, 1, 2, 23.0),
    Sketcher.Constraint("DistanceY", 0, 2, 0, 1, 4.0),
    Sketcher.Constraint("DistanceX", 0, 2, -1, 1, 96.4),
])
sketch12.setExpression("Constraints[9]", "Params.sketch12_width")
sketch12.setExpression("Constraints[10]", "Params.sketch12_height")
pocket6 = body.newObject("PartDesign::Pocket", "Pocket005")
pocket6.Profile = sketch12
pocket6.setExpression("Length", "Params.pocket6_length")

# Sketch on XY plane
sketch13 = body.newObject("Sketcher::SketchObject", "Sketch012")
sketch13.AttachmentSupport = (doc.getObject("XY_Plane"), [""])
sketch13.MapMode = "FlatFace"
sketch13.AttachmentOffset = App.Placement(App.Vector(0, 0, 2), App.Rotation())
sketch13.addGeometry([
    Part.LineSegment(App.Vector(-125.5, 132, 0), App.Vector(-125.5, 4, 0)),  # 0
    Part.LineSegment(App.Vector(-125.5, 4, 0), App.Vector(-12, 4, 0)),  # 1
    Part.LineSegment(App.Vector(-12, 4, 0), App.Vector(-12, 48, 0)),  # 2
    Part.LineSegment(App.Vector(-12, 48, 0), App.Vector(-2, 48, 0)),  # 3
    Part.LineSegment(App.Vector(-2, 48, 0), App.Vector(-2, 87, 0)),  # 4
    Part.LineSegment(App.Vector(-2, 87, 0), App.Vector(-12, 87, 0)),  # 5
    Part.LineSegment(App.Vector(-12, 87, 0), App.Vector(-12, 132, 0)),  # 6
    Part.LineSegment(App.Vector(-12, 132, 0), App.Vector(-125.5, 132, 0)),  # 7
], False)
sketch13.addConstraint([
    Sketcher.Constraint("Coincident", 0, 2, 1, 1),
    Sketcher.Constraint("Coincident", 1, 2, 2, 1),
    Sketcher.Constraint("Coincident", 2, 2, 3, 1),
    Sketcher.Constraint("Coincident", 3, 2, 4, 1),
    Sketcher.Constraint("Coincident", 4, 2, 5, 1),
    Sketcher.Constraint("Coincident", 5, 2, 6, 1),
    Sketcher.Constraint("Coincident", 6, 2, 7, 1),
    Sketcher.Constraint("Coincident", 7, 2, 0, 1),
    Sketcher.Constraint("Vertical", 0),
    Sketcher.Constraint("Horizontal", 1),
    Sketcher.Constraint("Vertical", 2),
    Sketcher.Constraint("Horizontal", 3),
    Sketcher.Constraint("Vertical", 4),
    Sketcher.Constraint("Horizontal", 5),
    Sketcher.Constraint("Vertical", 6),
    Sketcher.Constraint("Horizontal", 7),
    Sketcher.Constraint("Vertical", 2, 2, 5, 2),
    Sketcher.Constraint("DistanceX", 3, 1, 3, 2, 10.0),
    Sketcher.Constraint("DistanceY", 0, 2, 0, 1, 128.0),
    Sketcher.Constraint("DistanceY", 2, 1, 2, 2, 44.0),
    Sketcher.Constraint("DistanceY", 4, 1, 4, 2, 39.0),
    Sketcher.Constraint("DistanceX", 1, 1, 1, 2, 113.5),
    Sketcher.Constraint("DistanceY", -1, 1, 0, 2, 4.0),
    Sketcher.Constraint("DistanceX", 1, 2, -1, 1, 12.0),
])
sketch13.setExpression("Constraints[17]", "Params.sketch13_width")
sketch13.setExpression("Constraints[18]", "Params.sketch13_height")
sketch13.setExpression("Constraints[19]", "Params.sketch13_height2")
sketch13.setExpression("Constraints[20]", "Params.sketch13_height3")
sketch13.setExpression("Constraints[21]", "Params.sketch13_width2")
pad7 = body.newObject("PartDesign::Pad", "Pad006")
pad7.Profile = sketch13
pad7.setExpression("Length", "Params.pad7_length")

doc.recompute()
